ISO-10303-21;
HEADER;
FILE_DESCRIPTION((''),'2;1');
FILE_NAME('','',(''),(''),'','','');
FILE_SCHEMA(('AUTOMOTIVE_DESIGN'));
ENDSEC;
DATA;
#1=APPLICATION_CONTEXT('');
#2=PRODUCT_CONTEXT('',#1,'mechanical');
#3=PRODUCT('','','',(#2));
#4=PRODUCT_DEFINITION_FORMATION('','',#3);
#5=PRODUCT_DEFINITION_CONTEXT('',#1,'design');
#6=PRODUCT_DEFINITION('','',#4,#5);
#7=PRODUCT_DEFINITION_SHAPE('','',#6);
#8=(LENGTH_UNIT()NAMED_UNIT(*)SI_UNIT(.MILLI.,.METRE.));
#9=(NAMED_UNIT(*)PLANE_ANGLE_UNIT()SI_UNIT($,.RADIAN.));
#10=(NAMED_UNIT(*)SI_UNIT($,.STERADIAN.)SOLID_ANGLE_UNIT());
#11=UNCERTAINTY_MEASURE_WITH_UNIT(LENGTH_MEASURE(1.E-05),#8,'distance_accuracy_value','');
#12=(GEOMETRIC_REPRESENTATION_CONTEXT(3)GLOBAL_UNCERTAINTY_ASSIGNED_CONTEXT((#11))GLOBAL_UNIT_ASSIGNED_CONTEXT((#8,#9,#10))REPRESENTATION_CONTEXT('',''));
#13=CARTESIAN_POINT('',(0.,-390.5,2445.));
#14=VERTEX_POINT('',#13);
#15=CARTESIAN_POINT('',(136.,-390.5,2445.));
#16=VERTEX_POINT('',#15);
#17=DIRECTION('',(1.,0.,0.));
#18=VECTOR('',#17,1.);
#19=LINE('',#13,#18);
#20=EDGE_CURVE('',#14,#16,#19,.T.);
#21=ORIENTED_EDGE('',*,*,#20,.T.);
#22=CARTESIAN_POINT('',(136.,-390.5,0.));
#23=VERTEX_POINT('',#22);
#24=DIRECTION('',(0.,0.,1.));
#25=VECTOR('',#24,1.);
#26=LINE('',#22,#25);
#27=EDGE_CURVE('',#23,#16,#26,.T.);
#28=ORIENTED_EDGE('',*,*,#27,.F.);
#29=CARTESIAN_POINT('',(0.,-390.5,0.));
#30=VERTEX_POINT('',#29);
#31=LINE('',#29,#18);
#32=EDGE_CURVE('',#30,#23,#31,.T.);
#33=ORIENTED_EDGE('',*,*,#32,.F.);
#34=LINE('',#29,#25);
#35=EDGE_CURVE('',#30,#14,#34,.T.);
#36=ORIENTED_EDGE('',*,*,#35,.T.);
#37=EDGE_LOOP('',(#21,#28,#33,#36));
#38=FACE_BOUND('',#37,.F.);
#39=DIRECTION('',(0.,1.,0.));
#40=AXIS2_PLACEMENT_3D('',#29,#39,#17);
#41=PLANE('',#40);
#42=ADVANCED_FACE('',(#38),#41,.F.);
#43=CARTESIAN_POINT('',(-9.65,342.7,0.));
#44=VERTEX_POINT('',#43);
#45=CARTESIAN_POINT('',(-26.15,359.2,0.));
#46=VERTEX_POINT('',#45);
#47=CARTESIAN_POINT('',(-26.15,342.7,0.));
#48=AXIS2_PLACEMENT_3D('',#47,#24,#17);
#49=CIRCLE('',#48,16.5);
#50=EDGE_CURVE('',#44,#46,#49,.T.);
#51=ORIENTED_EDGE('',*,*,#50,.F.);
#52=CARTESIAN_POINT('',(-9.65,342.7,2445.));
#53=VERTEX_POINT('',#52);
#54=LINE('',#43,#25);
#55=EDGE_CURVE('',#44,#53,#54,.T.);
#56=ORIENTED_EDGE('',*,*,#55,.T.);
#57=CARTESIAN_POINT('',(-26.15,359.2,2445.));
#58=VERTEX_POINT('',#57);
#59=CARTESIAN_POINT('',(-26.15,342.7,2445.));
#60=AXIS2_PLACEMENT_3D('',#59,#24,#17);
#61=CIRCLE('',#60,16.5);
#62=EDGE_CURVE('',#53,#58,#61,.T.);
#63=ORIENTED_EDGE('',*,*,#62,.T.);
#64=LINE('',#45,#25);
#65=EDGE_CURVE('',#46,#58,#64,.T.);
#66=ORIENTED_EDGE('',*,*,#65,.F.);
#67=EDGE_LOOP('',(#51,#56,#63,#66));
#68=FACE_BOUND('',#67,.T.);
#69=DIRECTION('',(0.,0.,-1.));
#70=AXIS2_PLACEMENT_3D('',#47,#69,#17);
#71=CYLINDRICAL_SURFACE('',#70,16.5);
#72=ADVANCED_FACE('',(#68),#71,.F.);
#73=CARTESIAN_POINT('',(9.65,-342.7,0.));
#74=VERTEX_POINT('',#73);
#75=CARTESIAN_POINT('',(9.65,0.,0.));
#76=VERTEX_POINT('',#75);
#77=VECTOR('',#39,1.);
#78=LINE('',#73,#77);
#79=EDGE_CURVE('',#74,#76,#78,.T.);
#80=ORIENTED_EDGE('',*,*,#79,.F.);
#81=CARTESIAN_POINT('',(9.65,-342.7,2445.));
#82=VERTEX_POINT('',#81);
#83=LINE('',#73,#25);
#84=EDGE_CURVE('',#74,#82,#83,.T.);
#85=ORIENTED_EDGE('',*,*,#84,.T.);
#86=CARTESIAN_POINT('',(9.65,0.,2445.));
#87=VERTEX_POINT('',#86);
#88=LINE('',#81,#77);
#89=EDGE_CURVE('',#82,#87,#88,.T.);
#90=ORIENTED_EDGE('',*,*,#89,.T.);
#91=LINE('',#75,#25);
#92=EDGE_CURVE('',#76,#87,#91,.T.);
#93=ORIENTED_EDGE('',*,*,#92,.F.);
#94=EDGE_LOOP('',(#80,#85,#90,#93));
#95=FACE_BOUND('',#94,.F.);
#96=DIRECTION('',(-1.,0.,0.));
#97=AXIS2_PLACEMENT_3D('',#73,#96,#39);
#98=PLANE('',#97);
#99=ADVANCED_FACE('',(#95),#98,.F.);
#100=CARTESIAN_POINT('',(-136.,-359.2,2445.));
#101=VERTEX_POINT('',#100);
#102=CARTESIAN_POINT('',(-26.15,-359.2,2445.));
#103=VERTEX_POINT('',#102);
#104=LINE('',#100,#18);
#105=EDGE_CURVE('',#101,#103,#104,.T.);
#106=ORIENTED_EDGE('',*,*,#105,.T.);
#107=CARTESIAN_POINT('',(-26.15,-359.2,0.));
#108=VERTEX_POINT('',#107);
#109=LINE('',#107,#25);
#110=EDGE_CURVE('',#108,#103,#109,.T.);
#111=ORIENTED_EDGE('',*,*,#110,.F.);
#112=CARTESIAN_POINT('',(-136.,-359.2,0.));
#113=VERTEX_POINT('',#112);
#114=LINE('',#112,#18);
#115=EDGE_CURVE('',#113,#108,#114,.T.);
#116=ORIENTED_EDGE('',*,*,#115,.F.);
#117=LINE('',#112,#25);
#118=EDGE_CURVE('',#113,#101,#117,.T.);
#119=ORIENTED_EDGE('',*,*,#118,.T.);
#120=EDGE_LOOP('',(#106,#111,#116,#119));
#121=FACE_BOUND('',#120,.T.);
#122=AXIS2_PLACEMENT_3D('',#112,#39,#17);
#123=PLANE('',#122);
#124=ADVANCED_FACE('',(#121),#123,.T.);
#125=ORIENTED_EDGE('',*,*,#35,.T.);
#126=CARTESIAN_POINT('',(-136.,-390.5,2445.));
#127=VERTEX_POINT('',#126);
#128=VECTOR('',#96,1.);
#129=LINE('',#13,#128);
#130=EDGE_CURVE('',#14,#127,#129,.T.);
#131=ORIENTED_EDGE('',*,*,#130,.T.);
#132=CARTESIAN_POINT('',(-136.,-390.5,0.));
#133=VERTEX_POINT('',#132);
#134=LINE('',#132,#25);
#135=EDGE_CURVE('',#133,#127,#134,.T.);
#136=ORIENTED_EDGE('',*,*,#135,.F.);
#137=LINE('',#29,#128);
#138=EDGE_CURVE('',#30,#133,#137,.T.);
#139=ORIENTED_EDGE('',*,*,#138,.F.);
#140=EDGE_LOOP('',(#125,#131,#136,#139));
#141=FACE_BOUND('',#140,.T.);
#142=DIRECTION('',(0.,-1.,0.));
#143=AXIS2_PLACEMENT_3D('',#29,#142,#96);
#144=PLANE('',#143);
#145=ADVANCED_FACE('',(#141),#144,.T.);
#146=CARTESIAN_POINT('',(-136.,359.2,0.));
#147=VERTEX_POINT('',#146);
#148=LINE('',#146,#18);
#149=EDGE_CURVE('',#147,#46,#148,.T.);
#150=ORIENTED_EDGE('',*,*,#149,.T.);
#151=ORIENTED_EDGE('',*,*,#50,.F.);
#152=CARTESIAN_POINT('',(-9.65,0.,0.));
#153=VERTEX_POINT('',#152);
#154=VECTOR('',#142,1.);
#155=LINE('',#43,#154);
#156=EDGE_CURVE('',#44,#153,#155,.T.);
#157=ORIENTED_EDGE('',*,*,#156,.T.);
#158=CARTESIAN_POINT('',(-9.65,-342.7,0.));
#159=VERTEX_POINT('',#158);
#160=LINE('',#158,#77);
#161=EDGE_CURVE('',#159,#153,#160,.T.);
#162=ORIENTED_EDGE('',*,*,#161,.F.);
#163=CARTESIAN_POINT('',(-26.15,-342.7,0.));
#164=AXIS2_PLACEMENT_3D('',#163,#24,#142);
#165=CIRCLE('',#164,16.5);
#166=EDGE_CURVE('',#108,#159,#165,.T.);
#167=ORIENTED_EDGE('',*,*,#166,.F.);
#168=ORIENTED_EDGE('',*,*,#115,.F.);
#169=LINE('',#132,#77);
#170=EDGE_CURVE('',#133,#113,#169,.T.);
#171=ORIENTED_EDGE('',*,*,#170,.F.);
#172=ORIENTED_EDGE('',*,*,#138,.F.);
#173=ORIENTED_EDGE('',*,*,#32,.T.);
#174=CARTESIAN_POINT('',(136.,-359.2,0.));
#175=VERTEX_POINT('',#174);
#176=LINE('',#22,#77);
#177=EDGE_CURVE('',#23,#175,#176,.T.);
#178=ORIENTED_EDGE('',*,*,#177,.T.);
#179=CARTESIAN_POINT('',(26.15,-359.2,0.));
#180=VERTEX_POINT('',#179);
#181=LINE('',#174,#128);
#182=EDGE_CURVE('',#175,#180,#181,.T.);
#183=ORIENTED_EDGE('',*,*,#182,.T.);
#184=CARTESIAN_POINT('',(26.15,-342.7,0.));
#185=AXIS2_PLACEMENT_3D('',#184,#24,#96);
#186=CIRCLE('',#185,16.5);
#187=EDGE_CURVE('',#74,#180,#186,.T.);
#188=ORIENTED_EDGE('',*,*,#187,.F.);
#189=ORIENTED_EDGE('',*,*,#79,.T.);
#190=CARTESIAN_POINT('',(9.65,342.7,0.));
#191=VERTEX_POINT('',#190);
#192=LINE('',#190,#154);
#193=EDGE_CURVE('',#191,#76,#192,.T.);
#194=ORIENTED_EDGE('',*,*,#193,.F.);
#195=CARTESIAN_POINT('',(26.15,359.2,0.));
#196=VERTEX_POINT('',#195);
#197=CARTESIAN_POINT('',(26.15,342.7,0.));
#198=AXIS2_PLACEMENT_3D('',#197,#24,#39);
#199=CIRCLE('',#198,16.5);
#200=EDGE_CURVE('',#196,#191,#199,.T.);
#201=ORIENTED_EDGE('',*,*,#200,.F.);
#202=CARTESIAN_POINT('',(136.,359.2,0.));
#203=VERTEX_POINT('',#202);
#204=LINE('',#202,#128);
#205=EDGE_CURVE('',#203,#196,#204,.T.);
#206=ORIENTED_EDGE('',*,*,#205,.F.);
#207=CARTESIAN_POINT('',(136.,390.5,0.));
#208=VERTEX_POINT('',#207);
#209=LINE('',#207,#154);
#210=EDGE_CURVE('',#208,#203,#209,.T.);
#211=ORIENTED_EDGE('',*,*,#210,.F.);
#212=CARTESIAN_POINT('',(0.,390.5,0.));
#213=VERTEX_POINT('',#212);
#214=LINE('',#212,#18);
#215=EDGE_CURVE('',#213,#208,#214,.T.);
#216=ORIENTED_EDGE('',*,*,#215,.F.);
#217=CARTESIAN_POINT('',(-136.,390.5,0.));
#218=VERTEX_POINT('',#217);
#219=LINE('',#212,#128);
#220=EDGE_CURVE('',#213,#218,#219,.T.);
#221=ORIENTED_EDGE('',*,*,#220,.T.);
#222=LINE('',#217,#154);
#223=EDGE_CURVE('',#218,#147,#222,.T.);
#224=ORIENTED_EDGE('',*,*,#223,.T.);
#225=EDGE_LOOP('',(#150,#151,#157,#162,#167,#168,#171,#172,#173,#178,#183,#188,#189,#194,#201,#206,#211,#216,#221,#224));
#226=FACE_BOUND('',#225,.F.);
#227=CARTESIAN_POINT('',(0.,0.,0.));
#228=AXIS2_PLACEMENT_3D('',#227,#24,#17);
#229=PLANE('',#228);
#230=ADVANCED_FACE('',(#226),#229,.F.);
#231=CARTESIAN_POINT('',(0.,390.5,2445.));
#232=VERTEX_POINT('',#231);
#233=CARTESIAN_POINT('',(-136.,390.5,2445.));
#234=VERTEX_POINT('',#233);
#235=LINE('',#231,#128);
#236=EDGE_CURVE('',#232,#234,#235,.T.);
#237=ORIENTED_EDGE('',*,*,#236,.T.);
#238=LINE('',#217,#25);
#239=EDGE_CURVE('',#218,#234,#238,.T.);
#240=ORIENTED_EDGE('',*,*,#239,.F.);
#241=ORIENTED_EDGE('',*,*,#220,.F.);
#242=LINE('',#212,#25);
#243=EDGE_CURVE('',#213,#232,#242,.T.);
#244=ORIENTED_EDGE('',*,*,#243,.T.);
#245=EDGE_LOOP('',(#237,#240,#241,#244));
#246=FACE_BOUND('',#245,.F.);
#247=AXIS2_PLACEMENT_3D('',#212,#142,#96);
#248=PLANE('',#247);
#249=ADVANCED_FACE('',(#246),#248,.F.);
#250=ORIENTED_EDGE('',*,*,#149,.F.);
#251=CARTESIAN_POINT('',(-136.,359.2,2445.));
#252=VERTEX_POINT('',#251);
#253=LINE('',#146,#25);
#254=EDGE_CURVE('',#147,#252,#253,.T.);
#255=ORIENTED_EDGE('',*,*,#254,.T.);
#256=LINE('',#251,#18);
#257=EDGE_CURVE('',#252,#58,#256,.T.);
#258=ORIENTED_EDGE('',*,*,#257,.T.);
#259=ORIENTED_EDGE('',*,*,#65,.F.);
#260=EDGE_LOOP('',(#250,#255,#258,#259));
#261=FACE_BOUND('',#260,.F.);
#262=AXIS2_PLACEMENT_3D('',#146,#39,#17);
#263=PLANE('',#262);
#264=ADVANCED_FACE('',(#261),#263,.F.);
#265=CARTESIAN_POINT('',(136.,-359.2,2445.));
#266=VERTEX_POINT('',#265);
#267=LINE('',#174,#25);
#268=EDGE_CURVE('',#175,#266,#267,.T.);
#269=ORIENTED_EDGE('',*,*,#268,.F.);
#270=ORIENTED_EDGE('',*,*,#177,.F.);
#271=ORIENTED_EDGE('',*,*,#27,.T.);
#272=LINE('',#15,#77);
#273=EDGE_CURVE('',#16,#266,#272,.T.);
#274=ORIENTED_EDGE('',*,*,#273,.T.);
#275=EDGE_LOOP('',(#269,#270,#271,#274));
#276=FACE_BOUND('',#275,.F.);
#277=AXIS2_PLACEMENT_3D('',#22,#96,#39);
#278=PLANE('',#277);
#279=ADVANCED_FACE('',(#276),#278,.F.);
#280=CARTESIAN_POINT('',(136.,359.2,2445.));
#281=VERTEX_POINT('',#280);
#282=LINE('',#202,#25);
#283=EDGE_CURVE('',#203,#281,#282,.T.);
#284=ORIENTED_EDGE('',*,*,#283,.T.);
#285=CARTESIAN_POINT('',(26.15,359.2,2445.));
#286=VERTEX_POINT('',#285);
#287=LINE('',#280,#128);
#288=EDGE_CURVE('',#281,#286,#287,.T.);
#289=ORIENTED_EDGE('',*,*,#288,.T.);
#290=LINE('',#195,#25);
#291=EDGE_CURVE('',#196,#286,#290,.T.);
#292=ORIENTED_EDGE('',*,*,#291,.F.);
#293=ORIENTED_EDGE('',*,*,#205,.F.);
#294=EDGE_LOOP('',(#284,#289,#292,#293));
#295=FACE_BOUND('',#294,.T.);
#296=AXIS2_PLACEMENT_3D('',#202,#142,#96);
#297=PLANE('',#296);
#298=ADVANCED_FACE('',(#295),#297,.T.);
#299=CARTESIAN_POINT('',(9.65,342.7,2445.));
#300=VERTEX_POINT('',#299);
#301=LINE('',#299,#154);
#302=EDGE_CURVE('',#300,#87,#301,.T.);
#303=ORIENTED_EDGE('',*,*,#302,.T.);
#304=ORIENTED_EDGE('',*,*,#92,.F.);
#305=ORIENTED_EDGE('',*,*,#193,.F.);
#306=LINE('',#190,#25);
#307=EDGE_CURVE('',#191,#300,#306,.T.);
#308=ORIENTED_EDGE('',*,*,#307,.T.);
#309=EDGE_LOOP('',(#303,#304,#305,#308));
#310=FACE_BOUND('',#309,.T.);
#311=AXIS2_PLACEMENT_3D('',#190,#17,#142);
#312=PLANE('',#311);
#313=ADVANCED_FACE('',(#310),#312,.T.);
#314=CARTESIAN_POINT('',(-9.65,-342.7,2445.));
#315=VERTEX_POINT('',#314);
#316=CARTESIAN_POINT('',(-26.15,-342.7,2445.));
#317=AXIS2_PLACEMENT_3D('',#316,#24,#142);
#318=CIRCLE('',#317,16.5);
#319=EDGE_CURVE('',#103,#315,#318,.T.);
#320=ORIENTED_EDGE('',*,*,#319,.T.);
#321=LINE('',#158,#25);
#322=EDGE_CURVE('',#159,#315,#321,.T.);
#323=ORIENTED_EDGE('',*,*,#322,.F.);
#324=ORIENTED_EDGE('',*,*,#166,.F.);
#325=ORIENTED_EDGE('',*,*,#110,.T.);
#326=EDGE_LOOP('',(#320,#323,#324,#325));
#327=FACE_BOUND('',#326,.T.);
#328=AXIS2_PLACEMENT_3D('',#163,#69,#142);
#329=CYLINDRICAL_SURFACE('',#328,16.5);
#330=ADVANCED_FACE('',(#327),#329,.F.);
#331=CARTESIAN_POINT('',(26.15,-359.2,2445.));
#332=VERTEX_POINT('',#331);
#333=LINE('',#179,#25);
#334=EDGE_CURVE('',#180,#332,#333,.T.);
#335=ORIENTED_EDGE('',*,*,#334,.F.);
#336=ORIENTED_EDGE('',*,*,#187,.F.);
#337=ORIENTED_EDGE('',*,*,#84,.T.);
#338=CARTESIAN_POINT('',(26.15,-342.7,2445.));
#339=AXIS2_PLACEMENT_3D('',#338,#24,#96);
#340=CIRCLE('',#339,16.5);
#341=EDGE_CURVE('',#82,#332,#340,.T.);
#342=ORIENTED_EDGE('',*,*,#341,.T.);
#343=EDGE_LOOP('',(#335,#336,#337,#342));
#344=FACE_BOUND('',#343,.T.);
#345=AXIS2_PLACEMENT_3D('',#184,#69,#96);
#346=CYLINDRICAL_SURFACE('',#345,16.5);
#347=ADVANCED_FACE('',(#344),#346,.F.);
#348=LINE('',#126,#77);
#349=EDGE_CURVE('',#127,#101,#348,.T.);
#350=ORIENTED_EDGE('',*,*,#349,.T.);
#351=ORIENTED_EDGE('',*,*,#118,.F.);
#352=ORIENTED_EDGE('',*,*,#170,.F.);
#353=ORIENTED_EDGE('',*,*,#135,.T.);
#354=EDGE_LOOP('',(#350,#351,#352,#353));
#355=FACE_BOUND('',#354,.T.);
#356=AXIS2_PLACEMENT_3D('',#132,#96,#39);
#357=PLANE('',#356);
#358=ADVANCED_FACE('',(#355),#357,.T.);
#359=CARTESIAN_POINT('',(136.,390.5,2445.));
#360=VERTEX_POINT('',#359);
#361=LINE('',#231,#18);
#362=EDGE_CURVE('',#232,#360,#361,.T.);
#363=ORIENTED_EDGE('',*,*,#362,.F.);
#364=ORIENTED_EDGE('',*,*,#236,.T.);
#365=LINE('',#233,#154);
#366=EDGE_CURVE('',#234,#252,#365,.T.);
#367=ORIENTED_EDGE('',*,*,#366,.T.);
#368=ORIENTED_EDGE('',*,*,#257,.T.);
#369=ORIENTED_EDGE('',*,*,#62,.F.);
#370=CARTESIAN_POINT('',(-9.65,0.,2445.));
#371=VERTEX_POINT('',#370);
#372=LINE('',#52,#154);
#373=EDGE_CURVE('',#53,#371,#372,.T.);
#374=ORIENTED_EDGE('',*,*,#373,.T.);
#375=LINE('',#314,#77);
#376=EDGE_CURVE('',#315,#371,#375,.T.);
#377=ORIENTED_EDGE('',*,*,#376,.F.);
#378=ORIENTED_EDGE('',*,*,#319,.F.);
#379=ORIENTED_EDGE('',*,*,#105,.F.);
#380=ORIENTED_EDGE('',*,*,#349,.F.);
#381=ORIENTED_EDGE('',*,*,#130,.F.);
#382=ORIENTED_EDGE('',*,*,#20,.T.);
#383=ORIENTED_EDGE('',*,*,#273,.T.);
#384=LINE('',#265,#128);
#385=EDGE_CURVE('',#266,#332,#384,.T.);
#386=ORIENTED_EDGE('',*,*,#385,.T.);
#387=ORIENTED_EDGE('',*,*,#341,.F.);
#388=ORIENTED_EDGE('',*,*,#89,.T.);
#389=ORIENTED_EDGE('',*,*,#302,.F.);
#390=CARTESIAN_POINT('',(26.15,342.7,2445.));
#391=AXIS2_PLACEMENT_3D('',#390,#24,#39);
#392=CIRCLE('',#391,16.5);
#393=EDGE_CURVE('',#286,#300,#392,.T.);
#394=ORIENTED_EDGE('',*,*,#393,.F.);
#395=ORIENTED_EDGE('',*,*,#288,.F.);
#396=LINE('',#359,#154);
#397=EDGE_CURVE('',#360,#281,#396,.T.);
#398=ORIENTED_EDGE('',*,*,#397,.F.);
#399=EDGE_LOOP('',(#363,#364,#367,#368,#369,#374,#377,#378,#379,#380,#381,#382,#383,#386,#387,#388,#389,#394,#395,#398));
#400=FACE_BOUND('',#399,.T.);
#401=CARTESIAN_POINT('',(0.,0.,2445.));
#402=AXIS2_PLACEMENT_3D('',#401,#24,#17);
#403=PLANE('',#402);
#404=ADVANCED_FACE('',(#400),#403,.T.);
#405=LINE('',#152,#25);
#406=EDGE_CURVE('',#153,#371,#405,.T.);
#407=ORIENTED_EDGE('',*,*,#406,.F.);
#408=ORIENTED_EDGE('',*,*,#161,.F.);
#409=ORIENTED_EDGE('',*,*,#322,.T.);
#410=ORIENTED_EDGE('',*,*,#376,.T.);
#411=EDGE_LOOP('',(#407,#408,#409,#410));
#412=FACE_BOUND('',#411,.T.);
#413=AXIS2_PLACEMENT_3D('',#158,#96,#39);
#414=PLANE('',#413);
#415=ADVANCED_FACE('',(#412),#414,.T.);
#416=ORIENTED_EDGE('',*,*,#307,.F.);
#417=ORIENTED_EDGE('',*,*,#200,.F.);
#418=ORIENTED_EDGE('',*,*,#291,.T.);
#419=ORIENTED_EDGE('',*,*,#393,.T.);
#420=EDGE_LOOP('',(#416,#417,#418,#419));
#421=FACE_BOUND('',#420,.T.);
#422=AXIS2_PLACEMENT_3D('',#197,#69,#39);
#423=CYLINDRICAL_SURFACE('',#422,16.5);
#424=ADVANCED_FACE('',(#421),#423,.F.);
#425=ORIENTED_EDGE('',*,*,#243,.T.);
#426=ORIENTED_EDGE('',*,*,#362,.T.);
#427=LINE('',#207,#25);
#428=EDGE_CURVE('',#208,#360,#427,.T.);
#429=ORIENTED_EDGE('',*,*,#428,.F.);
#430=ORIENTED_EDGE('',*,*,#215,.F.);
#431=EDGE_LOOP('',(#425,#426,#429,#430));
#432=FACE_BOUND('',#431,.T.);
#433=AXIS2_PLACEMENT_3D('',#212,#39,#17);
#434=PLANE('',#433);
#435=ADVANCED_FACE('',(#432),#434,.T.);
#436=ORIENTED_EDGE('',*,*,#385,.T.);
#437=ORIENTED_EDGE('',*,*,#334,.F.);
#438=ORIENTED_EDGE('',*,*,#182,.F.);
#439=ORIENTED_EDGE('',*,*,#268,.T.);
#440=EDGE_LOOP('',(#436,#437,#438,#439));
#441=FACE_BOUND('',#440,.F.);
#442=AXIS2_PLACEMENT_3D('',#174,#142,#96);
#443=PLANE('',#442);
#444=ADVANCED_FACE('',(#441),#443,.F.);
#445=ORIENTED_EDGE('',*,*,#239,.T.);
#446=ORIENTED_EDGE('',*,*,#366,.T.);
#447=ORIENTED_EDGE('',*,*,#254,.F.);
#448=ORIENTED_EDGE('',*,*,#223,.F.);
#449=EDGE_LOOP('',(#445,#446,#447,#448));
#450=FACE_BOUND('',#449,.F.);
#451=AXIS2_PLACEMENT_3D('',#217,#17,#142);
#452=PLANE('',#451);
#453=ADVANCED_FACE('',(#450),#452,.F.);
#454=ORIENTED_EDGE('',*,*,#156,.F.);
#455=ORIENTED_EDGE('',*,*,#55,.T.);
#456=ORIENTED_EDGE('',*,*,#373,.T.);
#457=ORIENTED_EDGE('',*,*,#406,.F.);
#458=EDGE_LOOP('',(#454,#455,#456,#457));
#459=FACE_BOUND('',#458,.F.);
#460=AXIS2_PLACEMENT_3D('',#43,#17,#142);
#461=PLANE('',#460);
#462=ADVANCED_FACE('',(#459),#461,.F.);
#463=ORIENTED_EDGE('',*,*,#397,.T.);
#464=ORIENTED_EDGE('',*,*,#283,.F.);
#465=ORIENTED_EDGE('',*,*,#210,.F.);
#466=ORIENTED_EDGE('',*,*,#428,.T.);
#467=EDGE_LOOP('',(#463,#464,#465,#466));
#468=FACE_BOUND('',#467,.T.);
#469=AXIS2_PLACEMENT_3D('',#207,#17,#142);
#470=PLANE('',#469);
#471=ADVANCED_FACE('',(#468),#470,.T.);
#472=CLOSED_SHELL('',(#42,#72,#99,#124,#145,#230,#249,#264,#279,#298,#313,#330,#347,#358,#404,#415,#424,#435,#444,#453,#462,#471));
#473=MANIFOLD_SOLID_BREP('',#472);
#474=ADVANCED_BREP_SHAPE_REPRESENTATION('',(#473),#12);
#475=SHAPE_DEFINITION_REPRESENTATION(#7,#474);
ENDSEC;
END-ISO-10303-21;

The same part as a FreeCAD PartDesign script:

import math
import FreeCAD as App
import Part
import Sketcher

V = App.Vector

doc = App.newDocument("Part")
body = doc.addObject("PartDesign::Body", "Body")

# Sketch on XY plane
sketch1 = body.newObject("Sketcher::SketchObject", "Sketch")
sketch1.AttachmentSupport = (doc.getObject("XY_Plane"), [""])
sketch1.MapMode = "FlatFace"
sketch1.addGeometry([
    Part.LineSegment(V(-136, -359, 0), V(-136, -390, 0)),  # 0
    Part.LineSegment(V(-136, -390, 0), V(136, -390, 0)),  # 1
    Part.LineSegment(V(136, -390, 0), V(136, -359, 0)),  # 2
    Part.LineSegment(V(136, -359, 0), V(26, -359, 0)),  # 3
    Part.ArcOfCircle(Part.Circle(V(26, -343, 0), V(0, 0, 1), 16), math.radians(180), math.radians(270)),  # 4
    Part.LineSegment(V(10, -343, 0), V(10, 343, 0)),  # 5
    Part.ArcOfCircle(Part.Circle(V(26, 343, 0), V(0, 0, 1), 16), math.radians(90), math.radians(180)),  # 6
    Part.LineSegment(V(26, 359, 0), V(136, 359, 0)),  # 7
    Part.LineSegment(V(136, 359, 0), V(136, 390, 0)),  # 8
    Part.LineSegment(V(136, 390, 0), V(-136, 390, 0)),  # 9
    Part.LineSegment(V(-136, 390, 0), V(-136, 359, 0)),  # 10
    Part.LineSegment(V(-136, 359, 0), V(-26, 359, 0)),  # 11
    Part.ArcOfCircle(Part.Circle(V(-26, 343, 0), V(0, 0, 1), 16), math.radians(0), math.radians(90)),  # 12
    Part.LineSegment(V(-10, 343, 0), V(-10, -343, 0)),  # 13
    Part.ArcOfCircle(Part.Circle(V(-26, -343, 0), V(0, 0, 1), 16), math.radians(-90), math.radians(0)),  # 14
    Part.LineSegment(V(-26, -359, 0), V(-136, -359, 0)),  # 15
], False)
sketch1.addConstraint([
    Sketcher.Constraint("Coincident", 0, 2, 1, 1),
    Sketcher.Constraint("Coincident", 1, 2, 2, 1),
    Sketcher.Constraint("Coincident", 2, 2, 3, 1),
    Sketcher.Constraint("Tangent", 3, 2, 4, 2),
    Sketcher.Constraint("Tangent", 4, 1, 5, 1),
    Sketcher.Constraint("Tangent", 5, 2, 6, 2),
    Sketcher.Constraint("Tangent", 6, 1, 7, 1),
    Sketcher.Constraint("Coincident", 7, 2, 8, 1),
    Sketcher.Constraint("Coincident", 8, 2, 9, 1),
    Sketcher.Constraint("Coincident", 9, 2, 10, 1),
    Sketcher.Constraint("Coincident", 10, 2, 11, 1),
    Sketcher.Constraint("Tangent", 11, 2, 12, 2),
    Sketcher.Constraint("Tangent", 12, 1, 13, 1),
    Sketcher.Constraint("Tangent", 13, 2, 14, 2),
    Sketcher.Constraint("Tangent", 14, 1, 15, 1),
    Sketcher.Constraint("Coincident", 15, 2, 0, 1),
    Sketcher.Constraint("Vertical", 0),
    Sketcher.Constraint("Horizontal", 1),
    Sketcher.Constraint("Vertical", 2),
    Sketcher.Constraint("Horizontal", 3),
    Sketcher.Constraint("Vertical", 5),
    Sketcher.Constraint("Horizontal", 7),
    Sketcher.Constraint("Vertical", 8),
    Sketcher.Constraint("Horizontal", 9),
    Sketcher.Constraint("Vertical", 10),
    Sketcher.Constraint("Horizontal", 11),
    Sketcher.Constraint("Vertical", 13),
    Sketcher.Constraint("Horizontal", 15),
    Sketcher.Constraint("Equal", 4, 6),
    Sketcher.Constraint("Equal", 6, 12),
    Sketcher.Constraint("Equal", 12, 14),
    Sketcher.Constraint("Symmetric", 4, 3, 12, 3, -1, 1),
    Sketcher.Constraint("Symmetric", 0, 2, 8, 2, -1, 1),
    Sketcher.Constraint("Symmetric", 7, 2, 10, 2, -2),
    Sketcher.Constraint("Symmetric", 2, 2, 15, 2, -2),
    Sketcher.Constraint("Radius", 4, 16.5),
    Sketcher.Constraint("DistanceY", 0, 2, 0, 1, 31.3),
    Sketcher.Constraint("DistanceX", 0, 2, -1, 1, 136.0),
    Sketcher.Constraint("DistanceY", 0, 2, -1, 1, 390.5),
    Sketcher.Constraint("DistanceX", -1, 1, 4, 1, 9.65),
])
pad1 = body.newObject("PartDesign::Pad", "Pad")
pad1.Profile = sketch1
pad1.Length = 2445

doc.recompute()
